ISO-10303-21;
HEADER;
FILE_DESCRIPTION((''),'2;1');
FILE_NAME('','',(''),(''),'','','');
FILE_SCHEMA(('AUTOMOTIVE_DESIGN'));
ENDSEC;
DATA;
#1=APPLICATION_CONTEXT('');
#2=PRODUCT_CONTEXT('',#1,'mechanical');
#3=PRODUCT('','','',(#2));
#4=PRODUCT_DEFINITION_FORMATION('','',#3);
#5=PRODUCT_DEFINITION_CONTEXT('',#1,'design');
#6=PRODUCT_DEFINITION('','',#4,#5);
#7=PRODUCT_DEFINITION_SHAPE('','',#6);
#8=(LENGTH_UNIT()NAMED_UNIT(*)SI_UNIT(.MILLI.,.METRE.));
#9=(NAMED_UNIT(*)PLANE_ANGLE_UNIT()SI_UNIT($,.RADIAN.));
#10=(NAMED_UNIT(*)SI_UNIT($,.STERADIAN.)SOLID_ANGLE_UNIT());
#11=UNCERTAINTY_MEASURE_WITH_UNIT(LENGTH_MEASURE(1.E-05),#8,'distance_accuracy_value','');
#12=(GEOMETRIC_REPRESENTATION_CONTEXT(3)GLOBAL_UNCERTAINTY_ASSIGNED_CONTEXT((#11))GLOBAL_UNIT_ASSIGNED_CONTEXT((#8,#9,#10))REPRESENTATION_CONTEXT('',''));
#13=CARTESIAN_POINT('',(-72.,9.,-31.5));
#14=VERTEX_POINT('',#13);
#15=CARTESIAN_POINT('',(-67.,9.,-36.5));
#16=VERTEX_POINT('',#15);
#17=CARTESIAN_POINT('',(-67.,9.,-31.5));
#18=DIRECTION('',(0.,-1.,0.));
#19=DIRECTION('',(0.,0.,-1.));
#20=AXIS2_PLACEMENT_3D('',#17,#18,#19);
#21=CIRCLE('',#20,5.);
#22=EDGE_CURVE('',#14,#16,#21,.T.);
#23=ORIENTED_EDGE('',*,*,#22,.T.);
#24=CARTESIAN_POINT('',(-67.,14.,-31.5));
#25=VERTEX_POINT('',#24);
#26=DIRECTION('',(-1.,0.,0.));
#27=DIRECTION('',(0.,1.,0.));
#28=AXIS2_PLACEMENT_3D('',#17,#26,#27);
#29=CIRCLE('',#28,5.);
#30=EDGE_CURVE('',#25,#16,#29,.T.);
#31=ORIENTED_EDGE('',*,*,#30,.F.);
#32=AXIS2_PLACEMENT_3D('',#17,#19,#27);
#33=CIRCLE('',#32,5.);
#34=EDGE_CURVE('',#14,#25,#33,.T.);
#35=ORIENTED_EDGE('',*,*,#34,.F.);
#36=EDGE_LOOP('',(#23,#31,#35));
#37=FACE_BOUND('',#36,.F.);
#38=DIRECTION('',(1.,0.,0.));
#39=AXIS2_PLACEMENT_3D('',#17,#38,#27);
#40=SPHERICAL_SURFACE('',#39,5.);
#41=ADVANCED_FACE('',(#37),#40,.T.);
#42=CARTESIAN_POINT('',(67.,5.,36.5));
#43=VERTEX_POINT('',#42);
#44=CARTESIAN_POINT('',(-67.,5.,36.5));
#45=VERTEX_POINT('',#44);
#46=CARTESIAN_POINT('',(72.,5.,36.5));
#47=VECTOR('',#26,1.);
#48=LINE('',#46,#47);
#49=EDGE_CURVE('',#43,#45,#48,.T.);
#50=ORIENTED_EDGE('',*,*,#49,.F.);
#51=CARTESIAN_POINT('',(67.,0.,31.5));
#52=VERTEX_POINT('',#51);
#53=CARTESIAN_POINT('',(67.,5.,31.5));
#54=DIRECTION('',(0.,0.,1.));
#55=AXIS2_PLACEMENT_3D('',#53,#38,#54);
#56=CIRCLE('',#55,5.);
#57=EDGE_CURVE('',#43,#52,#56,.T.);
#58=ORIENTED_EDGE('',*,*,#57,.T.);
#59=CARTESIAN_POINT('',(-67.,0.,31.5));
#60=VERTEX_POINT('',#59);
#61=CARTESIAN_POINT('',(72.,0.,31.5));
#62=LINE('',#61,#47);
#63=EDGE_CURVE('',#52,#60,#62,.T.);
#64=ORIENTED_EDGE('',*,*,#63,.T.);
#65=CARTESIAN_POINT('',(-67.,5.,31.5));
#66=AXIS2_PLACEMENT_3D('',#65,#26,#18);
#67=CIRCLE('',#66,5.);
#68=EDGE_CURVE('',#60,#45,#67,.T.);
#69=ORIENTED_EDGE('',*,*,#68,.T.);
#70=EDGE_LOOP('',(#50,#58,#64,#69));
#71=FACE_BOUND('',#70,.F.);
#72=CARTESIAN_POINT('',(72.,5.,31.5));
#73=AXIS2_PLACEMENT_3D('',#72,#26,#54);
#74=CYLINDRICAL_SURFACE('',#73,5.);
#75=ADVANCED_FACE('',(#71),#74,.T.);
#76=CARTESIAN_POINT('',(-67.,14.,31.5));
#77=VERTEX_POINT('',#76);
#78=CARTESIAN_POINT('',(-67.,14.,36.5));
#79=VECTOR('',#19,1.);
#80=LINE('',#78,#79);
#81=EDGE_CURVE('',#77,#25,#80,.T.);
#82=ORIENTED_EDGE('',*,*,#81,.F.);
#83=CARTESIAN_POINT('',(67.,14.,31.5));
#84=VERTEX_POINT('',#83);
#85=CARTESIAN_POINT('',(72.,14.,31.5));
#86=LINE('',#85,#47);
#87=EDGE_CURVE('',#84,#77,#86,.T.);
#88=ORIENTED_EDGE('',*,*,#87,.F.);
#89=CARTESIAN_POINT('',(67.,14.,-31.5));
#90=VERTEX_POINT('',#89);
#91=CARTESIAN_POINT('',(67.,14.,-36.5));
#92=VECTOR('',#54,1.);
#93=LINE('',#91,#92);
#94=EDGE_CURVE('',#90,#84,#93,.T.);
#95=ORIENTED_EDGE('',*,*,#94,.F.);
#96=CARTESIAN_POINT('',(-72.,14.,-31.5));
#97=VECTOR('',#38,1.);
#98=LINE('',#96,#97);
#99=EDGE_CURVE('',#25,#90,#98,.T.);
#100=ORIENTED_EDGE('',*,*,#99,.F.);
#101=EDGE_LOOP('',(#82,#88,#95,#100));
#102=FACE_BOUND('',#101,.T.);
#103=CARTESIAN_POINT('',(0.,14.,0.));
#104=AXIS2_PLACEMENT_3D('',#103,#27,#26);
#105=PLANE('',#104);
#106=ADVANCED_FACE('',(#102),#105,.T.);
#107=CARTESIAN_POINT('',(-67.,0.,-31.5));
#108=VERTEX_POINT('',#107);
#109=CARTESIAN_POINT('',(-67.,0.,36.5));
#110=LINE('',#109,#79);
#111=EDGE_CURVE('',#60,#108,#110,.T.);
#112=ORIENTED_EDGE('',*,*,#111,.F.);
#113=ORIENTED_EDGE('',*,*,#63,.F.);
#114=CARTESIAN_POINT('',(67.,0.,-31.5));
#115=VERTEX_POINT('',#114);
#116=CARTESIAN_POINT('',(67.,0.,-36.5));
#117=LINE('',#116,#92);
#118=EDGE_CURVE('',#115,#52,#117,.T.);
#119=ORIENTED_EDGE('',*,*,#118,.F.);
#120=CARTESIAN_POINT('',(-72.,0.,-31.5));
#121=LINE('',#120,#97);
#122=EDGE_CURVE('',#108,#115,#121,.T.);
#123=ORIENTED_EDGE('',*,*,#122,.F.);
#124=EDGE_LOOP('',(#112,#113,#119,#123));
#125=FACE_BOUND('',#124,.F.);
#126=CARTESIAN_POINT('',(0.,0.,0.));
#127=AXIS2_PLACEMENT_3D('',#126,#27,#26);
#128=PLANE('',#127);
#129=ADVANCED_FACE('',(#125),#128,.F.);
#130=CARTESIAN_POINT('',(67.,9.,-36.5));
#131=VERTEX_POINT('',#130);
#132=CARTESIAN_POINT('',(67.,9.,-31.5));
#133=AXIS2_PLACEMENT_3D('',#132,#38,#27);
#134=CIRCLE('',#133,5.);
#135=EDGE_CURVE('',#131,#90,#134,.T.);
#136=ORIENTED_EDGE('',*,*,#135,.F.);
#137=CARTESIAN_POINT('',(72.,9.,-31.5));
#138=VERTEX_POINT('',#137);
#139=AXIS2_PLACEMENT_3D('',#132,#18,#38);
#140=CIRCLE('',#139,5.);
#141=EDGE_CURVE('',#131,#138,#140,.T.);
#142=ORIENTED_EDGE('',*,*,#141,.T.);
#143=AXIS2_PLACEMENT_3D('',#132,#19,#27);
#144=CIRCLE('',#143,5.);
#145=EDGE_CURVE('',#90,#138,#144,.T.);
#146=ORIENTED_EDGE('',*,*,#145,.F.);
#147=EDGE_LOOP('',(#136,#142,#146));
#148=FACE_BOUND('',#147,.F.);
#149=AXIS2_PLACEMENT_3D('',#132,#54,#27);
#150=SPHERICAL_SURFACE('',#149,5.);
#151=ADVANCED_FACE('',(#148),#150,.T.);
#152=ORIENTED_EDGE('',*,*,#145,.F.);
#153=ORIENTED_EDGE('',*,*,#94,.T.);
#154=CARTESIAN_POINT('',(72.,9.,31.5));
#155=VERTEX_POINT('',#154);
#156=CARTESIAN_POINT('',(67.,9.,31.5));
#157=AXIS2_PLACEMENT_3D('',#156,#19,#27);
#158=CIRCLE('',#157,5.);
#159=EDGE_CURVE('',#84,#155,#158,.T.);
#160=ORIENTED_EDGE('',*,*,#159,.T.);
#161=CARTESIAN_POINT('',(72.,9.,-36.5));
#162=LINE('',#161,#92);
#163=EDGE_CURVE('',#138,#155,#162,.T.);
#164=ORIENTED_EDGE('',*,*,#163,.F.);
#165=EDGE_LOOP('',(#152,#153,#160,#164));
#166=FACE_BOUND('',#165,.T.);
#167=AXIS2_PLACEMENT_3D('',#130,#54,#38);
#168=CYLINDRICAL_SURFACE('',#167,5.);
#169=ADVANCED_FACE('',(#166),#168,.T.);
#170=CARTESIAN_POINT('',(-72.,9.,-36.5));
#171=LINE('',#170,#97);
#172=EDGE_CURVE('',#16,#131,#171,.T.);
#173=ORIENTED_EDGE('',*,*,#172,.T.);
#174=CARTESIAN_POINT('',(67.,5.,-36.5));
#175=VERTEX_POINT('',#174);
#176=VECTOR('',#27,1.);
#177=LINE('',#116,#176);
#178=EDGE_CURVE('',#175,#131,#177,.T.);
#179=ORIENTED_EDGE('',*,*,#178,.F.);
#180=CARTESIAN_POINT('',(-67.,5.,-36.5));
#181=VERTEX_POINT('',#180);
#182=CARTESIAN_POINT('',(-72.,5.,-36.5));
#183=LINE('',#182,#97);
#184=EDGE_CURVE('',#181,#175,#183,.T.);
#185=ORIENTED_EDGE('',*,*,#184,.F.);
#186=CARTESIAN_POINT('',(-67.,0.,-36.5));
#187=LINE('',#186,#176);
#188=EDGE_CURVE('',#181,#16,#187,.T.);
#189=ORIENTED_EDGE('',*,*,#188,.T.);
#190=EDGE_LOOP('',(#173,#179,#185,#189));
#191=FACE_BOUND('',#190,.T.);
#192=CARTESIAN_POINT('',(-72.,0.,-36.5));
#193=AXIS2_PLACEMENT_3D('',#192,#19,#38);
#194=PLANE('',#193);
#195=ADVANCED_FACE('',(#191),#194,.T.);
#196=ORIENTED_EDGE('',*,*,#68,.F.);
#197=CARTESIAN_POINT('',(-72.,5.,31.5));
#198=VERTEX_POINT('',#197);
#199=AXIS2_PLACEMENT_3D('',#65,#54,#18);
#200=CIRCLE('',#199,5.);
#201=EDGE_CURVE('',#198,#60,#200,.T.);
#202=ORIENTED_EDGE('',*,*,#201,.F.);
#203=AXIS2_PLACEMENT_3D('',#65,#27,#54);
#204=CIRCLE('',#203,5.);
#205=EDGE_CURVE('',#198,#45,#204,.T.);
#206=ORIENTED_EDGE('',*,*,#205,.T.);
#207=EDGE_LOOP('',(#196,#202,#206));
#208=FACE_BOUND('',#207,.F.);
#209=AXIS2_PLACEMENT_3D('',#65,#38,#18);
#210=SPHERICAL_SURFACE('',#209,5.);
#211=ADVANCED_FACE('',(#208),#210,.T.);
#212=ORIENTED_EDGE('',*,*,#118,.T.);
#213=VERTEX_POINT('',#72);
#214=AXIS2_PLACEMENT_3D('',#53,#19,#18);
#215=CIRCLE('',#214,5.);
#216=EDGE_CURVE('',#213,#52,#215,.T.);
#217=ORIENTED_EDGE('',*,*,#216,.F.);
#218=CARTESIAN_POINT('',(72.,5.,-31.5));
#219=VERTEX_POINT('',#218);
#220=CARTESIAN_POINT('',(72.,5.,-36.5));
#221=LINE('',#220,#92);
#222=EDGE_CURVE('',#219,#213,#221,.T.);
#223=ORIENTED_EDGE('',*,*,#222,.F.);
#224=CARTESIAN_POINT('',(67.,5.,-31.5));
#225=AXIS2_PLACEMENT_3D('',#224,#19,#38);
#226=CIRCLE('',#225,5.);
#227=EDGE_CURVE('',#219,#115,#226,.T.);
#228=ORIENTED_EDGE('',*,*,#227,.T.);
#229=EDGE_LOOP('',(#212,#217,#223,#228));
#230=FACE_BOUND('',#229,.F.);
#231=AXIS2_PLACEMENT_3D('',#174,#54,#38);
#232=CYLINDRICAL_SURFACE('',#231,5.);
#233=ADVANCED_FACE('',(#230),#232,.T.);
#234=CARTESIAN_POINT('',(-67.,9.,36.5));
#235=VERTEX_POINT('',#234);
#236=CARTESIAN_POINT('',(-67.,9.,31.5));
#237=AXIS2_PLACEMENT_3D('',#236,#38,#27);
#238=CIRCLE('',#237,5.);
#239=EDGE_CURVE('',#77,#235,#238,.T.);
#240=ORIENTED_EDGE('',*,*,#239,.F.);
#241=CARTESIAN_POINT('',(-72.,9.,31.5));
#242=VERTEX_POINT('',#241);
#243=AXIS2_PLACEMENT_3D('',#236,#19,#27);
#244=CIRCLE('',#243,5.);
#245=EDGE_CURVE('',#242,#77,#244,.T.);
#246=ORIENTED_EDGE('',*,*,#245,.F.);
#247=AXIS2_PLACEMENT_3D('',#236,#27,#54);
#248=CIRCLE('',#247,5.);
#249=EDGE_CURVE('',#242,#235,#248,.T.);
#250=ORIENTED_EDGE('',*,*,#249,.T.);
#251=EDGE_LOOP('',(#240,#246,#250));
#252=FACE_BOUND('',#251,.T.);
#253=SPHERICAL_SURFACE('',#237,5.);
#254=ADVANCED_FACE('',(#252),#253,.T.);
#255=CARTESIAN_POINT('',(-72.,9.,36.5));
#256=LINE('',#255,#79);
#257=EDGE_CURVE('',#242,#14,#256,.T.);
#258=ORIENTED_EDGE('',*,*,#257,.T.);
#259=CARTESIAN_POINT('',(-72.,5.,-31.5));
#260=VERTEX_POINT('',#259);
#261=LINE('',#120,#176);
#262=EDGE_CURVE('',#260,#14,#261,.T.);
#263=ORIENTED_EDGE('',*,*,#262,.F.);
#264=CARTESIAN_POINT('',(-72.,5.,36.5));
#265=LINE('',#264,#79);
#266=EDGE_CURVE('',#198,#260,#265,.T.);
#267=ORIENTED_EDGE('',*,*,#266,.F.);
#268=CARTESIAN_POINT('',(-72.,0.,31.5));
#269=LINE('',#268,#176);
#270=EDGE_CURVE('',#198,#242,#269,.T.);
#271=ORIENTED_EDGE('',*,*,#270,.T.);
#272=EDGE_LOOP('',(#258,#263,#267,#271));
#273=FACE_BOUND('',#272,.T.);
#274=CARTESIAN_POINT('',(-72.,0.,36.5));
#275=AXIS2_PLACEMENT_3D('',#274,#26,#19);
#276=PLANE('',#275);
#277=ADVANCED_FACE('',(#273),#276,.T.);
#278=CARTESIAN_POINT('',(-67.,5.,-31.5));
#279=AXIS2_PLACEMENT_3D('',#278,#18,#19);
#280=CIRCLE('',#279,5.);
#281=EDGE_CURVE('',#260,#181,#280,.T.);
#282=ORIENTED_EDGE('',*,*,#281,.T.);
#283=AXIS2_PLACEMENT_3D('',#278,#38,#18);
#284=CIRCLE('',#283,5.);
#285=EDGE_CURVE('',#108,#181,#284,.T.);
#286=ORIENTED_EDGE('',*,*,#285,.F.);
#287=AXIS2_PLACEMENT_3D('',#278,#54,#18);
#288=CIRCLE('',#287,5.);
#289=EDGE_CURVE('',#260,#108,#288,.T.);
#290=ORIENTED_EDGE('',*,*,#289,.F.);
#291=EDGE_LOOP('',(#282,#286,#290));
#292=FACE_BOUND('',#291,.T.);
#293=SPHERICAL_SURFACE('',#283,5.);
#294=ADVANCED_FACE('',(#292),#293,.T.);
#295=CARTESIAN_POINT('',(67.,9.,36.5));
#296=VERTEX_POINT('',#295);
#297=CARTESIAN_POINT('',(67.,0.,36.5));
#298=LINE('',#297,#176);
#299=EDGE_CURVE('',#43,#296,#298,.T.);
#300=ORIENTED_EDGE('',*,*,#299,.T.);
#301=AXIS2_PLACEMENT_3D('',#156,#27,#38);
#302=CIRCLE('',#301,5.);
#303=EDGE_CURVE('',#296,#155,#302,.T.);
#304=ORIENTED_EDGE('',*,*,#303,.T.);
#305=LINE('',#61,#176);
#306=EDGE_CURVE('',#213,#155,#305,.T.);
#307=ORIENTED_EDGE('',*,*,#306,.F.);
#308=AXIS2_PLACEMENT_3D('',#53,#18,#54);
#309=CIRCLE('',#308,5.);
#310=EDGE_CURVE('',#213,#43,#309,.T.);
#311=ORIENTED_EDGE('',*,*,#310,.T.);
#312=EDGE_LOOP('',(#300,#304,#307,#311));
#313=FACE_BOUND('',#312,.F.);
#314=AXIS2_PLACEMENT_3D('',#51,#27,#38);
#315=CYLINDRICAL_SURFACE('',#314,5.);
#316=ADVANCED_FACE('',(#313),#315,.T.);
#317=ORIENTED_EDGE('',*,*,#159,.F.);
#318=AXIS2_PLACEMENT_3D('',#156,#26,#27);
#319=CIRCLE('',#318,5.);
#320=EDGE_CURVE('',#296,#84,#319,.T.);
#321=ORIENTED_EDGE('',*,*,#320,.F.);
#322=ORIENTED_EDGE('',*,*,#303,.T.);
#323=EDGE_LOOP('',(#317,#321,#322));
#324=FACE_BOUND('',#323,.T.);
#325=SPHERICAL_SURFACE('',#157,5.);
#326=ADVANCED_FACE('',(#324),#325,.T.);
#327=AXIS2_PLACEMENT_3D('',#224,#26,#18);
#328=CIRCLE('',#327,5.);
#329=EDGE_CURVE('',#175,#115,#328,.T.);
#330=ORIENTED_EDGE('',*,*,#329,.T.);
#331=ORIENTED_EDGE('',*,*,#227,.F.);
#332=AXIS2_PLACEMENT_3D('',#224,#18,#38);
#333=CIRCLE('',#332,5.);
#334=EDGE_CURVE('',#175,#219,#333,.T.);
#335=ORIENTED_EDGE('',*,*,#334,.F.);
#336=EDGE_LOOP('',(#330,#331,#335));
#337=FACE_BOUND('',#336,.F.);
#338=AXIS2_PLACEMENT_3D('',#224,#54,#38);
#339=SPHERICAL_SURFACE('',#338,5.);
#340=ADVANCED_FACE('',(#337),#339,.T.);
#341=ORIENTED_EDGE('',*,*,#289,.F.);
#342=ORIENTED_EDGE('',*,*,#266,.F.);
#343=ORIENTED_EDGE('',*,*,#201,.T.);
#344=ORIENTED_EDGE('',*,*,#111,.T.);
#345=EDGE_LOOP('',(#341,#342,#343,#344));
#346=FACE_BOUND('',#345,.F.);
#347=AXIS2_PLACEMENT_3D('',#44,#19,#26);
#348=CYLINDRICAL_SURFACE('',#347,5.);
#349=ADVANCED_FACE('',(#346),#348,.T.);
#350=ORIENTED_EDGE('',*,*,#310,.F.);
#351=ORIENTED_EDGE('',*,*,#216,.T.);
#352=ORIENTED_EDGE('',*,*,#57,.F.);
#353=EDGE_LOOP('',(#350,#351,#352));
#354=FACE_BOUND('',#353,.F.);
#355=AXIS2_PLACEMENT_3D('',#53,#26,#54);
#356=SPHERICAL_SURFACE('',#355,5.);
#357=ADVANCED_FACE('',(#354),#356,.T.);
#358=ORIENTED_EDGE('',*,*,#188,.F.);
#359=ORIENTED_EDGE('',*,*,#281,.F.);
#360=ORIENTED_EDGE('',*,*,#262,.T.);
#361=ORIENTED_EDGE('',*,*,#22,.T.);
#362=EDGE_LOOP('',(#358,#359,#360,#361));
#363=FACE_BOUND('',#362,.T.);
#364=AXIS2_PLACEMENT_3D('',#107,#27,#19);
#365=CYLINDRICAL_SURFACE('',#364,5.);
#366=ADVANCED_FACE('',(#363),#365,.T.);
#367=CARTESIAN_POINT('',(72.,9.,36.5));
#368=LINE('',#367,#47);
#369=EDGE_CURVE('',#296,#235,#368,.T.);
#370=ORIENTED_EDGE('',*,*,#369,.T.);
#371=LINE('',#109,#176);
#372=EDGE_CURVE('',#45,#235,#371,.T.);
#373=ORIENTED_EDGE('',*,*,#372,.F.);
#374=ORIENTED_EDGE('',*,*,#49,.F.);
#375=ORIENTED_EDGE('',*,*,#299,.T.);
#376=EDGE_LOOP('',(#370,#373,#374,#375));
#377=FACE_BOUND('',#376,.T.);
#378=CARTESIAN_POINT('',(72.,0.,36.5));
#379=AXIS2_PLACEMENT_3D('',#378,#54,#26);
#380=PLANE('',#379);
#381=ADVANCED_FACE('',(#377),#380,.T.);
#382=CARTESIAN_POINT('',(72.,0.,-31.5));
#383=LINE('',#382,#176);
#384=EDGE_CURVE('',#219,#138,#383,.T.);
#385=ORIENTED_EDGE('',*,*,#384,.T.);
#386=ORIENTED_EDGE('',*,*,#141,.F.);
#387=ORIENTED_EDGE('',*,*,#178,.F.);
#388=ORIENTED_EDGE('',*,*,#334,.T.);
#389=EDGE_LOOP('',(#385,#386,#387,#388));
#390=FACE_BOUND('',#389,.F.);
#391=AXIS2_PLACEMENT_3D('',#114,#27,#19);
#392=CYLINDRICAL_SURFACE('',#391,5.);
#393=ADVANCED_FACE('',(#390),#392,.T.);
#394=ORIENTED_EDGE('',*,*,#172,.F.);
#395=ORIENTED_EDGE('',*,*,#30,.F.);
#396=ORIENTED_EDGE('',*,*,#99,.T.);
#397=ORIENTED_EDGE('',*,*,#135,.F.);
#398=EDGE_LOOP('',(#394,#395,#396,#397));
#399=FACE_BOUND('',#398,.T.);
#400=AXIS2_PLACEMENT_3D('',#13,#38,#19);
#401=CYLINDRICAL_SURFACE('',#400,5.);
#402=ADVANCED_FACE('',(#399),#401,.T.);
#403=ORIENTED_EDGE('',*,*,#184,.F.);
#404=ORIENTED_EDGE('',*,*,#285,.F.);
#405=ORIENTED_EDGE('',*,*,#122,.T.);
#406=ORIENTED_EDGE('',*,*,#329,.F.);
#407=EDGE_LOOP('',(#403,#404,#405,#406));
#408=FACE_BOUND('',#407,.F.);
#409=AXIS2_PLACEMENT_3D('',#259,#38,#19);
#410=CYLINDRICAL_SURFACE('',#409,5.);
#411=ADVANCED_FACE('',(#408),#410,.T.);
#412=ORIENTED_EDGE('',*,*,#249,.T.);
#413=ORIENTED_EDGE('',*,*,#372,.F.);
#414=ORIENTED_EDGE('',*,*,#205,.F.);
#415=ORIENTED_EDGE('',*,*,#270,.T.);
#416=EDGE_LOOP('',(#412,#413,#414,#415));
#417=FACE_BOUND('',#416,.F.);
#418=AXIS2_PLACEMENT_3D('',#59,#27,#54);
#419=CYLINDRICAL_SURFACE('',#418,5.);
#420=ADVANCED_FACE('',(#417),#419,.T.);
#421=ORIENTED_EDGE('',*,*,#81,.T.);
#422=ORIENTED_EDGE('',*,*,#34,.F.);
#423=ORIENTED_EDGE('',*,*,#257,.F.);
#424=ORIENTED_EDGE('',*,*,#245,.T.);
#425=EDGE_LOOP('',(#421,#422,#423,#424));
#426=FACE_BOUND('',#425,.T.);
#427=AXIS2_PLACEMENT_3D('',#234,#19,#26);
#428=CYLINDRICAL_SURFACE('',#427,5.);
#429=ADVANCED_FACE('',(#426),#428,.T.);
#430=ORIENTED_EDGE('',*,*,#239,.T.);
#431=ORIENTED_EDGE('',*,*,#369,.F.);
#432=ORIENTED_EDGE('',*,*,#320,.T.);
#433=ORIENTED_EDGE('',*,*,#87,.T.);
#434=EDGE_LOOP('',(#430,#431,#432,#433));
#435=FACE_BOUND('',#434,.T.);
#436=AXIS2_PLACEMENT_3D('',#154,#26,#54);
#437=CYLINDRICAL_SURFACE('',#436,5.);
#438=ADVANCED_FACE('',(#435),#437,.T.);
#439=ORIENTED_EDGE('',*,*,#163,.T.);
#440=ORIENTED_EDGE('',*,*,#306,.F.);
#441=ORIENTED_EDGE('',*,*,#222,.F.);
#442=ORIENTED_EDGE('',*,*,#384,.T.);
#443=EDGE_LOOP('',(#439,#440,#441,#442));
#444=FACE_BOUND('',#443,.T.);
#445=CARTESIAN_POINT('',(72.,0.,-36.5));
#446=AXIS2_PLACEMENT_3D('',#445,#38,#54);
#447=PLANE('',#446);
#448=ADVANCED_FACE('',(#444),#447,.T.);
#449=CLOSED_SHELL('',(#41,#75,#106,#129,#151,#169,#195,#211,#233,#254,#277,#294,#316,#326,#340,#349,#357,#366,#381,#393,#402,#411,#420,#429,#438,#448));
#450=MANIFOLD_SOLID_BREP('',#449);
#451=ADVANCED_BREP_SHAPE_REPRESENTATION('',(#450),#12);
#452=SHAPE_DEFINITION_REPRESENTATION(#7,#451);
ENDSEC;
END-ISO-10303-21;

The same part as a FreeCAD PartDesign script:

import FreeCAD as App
import Part
import Sketcher


def add_polygon(sketch, points):
    """Adds a closed chain of lines whose ends are joined by coincident constraints."""
    first, n = sketch.GeometryCount, len(points)
    for a, b in zip(points, points[1:] + points[:1]):
        sketch.addGeometry(Part.LineSegment(App.Vector(*a, 0), App.Vector(*b, 0)), False)
    for i in range(n):
        sketch.addConstraint(Sketcher.Constraint("Coincident", first + i, 2, first + (i + 1) % n, 1))

doc = App.newDocument("Part")
params = doc.addObject("Spreadsheet::Sheet", "Params")
for row, (alias, value) in enumerate([
    ("sketch1_width", "144 mm"),
    ("sketch1_height", "73 mm"),
    ("pad1_length", "14 mm"),
    ("fillet_radius", "5 mm"),
], start=1):
    params.set(f"A{row}", alias)
    params.set(f"B{row}", "=" + value)
    params.setAlias(f"B{row}", alias)

body = doc.addObject("PartDesign::Body", "Body")

sketch1 = doc.addObject("Sketcher::SketchObject", "Sketch")
body.addObject(sketch1)
sketch1.AttachmentSupport = (doc.XZ_Plane, [""])
sketch1.MapMode = "FlatFace"
add_polygon(sketch1, [(72, -36), (-72, -36), (-72, 36), (72, 36)])
sketch1.addConstraint(Sketcher.Constraint("Horizontal", 0))
sketch1.addConstraint(Sketcher.Constraint("Vertical", 1))
sketch1.addConstraint(Sketcher.Constraint("Horizontal", 2))
sketch1.addConstraint(Sketcher.Constraint("Vertical", 3))
sketch1.addConstraint(Sketcher.Constraint("Symmetric", 0, 2, 2, 2, -1, 1))
sketch1.addConstraint(Sketcher.Constraint("DistanceX", 0, 2, 0, 1, 144.0))
sketch1.addConstraint(Sketcher.Constraint("DistanceY", 1, 1, 1, 2, 73.0))
sketch1.setExpression("Constraints[9]", "Params.sketch1_width")
sketch1.setExpression("Constraints[10]", "Params.sketch1_height")
pad1 = doc.addObject("PartDesign::Pad", "Pad")
body.addObject(pad1)
pad1.Profile = sketch1
pad1.setExpression("Length", "Params.pad1_length")
pad1.Reversed = True
doc.recompute()

fillet = doc.addObject("PartDesign::Fillet", "Fillet")
body.addObject(fillet)
fillet.Base = (pad1, ["Edge1"])
fillet.UseAllEdges = True
fillet.setExpression("Radius", "Params.fillet_radius")

doc.recompute()
